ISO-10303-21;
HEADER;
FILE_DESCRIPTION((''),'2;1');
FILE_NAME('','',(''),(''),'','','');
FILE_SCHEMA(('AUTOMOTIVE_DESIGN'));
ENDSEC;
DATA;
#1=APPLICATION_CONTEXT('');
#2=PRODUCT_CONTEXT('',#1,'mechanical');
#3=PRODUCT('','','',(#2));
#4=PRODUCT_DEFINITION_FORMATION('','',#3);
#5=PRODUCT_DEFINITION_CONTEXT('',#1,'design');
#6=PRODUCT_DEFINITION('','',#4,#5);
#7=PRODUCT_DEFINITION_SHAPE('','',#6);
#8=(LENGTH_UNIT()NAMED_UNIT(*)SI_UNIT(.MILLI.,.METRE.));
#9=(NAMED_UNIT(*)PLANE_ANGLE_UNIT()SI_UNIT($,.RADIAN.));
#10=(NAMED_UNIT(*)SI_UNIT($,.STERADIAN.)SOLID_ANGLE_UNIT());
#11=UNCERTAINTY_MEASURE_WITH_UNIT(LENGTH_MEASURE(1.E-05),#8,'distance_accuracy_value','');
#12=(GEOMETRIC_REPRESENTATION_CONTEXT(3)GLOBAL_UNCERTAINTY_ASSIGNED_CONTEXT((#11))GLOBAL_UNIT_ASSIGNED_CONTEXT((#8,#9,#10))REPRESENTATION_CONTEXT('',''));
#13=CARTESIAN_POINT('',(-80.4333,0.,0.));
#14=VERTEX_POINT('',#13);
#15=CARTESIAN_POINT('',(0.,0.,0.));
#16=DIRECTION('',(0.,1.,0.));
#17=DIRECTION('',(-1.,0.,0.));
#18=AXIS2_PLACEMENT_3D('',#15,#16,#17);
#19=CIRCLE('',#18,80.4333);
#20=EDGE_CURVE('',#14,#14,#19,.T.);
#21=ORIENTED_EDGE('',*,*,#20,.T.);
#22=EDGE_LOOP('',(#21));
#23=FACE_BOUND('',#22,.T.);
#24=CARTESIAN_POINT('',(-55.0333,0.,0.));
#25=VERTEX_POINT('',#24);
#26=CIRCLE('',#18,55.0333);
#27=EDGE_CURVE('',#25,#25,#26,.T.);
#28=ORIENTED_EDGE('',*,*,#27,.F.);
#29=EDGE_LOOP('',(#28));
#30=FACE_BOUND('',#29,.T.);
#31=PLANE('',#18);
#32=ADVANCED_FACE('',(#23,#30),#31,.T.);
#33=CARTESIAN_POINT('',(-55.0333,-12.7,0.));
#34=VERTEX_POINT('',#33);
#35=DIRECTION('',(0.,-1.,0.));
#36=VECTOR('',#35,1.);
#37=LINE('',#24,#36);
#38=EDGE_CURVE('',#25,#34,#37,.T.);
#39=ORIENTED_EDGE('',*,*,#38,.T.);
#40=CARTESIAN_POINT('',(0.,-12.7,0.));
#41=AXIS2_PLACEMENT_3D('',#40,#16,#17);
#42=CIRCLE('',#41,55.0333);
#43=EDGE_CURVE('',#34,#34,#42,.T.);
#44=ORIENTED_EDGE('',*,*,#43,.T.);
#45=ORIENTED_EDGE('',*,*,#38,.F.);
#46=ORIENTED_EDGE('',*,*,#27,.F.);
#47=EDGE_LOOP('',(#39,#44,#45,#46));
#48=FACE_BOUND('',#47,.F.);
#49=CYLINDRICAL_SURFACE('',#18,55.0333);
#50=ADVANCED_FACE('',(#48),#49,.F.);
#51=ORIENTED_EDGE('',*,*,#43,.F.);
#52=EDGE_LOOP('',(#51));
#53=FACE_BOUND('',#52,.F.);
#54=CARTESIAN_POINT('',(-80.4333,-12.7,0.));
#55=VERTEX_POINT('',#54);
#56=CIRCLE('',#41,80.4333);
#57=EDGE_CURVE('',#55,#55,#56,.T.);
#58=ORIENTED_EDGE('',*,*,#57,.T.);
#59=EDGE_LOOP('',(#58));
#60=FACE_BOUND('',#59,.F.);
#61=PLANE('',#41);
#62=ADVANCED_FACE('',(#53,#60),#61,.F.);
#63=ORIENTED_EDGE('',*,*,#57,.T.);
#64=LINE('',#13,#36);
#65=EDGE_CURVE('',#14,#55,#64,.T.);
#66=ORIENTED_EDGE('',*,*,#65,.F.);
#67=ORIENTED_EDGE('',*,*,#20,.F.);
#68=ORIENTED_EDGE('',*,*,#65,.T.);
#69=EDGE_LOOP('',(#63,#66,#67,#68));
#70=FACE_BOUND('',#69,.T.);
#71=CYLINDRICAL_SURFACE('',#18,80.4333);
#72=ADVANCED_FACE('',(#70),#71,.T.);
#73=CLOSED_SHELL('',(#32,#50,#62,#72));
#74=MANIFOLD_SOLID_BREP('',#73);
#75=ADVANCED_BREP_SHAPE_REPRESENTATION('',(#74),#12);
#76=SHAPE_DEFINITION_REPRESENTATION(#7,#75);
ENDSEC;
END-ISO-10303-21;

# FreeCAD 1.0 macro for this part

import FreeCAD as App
import Part
import Sketcher
Q = App.Units.Quantity

doc = App.newDocument("Part")
body = doc.addObject("PartDesign::Body", "Body")

# Sketch on XZ plane
sketch1 = body.newObject("Sketcher::SketchObject", "Sketch")
sketch1.AttachmentSupport = (doc.getObject("XZ_Plane"), [""])
sketch1.MapMode = "FlatFace"
sketch1.addGeometry([
    Part.Circle(App.Vector(0, 0, 0), App.Vector(0, 0, 1), 80),
    Part.Circle(App.Vector(0, 0, 0), App.Vector(0, 0, 1), 55),
], False)
sketch1.addConstraint([
    Sketcher.Constraint("Coincident", 0, 3, -1, 1),
    Sketcher.Constraint("Coincident", 1, 3, -1, 1),
    Sketcher.Constraint("Diameter", 0, 160.8666),
    Sketcher.Constraint("Diameter", 1, 110.0666),
])
pad1 = body.newObject("PartDesign::Pad", "Pad")
pad1.Profile = sketch1
pad1.Length = Q("0.5 in")

doc.recompute()
